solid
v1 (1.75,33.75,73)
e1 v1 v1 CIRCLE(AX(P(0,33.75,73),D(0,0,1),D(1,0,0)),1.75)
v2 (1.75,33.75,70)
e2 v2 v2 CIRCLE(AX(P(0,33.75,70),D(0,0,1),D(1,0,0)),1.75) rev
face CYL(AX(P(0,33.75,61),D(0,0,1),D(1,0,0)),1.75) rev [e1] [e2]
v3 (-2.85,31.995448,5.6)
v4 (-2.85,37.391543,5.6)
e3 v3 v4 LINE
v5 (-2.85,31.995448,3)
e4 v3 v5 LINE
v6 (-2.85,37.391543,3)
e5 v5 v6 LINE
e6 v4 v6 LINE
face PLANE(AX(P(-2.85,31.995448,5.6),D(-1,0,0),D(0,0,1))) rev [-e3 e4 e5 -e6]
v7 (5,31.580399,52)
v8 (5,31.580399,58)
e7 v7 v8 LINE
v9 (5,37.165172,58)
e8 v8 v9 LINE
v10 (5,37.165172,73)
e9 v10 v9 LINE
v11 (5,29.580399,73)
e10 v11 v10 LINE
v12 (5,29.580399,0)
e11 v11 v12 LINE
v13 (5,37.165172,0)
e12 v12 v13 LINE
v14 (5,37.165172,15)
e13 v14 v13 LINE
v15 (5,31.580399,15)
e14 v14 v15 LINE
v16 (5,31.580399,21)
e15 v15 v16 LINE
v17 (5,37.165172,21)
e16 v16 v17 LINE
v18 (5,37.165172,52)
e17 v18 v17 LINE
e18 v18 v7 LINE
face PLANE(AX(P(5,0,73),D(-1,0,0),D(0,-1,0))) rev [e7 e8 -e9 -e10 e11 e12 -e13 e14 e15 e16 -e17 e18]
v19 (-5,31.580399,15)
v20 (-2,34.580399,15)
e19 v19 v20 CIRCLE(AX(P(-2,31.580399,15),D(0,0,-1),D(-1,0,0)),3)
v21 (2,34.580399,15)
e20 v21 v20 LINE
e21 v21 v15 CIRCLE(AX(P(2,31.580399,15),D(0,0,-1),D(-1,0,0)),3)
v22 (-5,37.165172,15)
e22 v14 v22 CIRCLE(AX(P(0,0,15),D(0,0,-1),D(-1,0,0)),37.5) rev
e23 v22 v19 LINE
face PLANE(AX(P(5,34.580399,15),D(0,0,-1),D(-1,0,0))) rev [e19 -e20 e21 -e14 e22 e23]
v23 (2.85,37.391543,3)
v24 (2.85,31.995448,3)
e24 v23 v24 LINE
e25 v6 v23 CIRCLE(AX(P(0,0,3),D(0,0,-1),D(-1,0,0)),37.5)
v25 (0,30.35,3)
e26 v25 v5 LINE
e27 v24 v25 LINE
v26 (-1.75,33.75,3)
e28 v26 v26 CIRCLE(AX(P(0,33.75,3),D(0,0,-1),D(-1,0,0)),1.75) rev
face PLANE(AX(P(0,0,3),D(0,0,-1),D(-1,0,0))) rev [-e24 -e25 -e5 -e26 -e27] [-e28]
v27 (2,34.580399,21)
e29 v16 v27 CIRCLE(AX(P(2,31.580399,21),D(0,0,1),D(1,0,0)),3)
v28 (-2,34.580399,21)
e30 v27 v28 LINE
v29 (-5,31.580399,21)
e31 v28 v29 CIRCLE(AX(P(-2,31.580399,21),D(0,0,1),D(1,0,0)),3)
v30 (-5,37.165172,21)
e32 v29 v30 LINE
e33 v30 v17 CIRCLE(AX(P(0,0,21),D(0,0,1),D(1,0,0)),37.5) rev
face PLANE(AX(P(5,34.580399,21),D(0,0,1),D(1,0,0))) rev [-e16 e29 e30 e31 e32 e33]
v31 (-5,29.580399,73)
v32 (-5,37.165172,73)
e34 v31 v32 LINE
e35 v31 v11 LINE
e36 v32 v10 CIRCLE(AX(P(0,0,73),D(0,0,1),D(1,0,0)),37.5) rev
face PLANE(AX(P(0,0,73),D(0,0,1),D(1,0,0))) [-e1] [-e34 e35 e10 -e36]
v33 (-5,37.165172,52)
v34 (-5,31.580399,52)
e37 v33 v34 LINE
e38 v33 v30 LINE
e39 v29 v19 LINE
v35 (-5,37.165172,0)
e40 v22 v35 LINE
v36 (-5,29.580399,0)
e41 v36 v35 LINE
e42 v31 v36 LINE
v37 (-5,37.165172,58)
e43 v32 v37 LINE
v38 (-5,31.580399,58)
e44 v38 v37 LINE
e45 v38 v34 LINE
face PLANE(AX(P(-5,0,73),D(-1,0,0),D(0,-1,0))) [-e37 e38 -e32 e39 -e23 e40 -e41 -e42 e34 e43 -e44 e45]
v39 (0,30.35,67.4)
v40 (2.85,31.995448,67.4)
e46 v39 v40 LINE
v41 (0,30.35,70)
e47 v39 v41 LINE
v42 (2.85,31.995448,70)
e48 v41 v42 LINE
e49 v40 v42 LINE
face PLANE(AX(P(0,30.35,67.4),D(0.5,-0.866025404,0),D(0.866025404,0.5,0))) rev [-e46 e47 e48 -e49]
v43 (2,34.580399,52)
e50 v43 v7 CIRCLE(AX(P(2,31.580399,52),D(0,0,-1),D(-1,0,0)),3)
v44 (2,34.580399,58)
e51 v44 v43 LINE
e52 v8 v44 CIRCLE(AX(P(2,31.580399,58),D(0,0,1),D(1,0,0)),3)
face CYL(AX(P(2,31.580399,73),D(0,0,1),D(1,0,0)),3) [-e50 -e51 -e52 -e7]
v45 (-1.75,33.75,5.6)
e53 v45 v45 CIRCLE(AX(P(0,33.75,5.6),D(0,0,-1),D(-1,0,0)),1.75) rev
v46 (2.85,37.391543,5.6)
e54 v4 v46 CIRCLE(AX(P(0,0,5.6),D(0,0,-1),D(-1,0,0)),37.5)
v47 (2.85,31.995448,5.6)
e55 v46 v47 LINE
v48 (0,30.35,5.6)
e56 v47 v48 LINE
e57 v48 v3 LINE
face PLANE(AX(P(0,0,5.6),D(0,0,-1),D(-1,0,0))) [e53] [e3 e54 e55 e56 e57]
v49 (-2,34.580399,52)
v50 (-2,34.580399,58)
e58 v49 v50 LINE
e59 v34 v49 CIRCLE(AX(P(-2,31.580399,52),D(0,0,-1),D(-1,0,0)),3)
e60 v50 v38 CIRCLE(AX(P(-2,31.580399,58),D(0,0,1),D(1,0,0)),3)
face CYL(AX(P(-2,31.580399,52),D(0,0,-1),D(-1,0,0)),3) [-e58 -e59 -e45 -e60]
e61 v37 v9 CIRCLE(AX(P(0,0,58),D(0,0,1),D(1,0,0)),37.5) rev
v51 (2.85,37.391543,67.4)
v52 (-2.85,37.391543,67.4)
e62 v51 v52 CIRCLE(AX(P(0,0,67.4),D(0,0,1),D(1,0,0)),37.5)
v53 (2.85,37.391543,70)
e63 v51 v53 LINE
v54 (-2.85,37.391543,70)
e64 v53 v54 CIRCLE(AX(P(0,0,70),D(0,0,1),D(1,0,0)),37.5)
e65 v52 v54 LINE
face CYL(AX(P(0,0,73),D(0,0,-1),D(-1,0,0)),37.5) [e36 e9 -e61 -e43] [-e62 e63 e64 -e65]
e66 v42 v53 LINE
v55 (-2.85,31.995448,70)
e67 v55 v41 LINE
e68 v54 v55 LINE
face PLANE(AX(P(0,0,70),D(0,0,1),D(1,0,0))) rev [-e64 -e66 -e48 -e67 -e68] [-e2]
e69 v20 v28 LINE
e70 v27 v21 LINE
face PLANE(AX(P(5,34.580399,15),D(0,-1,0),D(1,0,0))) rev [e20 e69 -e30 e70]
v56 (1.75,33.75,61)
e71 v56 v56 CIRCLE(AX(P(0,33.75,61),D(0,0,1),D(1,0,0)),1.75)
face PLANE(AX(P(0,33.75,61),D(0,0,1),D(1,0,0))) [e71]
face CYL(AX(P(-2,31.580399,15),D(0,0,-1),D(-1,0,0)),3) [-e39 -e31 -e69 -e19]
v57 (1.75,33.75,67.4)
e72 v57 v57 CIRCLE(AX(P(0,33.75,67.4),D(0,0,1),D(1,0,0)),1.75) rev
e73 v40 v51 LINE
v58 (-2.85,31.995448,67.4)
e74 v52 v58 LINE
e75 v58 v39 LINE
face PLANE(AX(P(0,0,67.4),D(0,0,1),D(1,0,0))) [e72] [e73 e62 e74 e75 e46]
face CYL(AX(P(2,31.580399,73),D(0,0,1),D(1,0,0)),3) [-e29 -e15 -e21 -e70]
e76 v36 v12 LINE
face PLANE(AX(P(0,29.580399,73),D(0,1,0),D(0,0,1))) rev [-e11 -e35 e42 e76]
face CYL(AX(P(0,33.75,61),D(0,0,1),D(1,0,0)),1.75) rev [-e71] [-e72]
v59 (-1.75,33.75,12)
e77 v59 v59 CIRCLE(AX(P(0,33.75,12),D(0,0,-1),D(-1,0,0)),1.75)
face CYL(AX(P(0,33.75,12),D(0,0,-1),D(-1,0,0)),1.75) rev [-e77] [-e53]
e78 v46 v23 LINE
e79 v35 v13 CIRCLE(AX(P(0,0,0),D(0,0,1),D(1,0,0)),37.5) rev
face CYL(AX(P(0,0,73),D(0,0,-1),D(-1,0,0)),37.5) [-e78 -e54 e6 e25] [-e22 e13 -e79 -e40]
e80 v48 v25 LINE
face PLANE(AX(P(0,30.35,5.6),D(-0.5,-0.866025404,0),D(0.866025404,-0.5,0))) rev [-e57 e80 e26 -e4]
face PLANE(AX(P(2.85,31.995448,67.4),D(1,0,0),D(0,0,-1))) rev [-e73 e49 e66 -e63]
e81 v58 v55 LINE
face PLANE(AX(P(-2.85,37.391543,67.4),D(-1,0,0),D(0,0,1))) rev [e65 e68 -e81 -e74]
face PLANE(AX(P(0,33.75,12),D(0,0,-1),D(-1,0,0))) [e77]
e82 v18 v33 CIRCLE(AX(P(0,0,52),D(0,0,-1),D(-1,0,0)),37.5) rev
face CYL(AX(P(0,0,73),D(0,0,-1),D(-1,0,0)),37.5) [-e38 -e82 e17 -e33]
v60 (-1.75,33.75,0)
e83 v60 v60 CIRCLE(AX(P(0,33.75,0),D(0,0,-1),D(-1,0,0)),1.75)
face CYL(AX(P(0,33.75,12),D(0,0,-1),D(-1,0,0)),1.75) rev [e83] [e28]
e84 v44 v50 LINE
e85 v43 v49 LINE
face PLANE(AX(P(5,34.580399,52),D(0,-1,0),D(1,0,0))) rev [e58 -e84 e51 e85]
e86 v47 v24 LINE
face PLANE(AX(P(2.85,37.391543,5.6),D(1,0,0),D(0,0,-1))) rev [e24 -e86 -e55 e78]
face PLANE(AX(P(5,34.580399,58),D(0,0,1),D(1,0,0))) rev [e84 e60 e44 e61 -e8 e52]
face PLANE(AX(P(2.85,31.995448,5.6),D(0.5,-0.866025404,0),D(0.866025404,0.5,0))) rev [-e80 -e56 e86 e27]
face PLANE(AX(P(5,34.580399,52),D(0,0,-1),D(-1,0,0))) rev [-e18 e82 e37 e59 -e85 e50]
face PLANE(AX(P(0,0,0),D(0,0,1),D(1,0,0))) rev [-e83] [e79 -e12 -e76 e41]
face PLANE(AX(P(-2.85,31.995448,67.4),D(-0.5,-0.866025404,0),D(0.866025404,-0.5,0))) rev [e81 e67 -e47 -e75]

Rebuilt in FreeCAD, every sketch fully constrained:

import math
import FreeCAD as App
import Part
import Sketcher
Q = App.Units.Quantity


def edges_at(feature, points):
    """Names of the edges that pass closest to the given points."""
    edges = feature.Shape.Edges
    near = lambda p: min(range(len(edges)), key=lambda i: edges[i].distToShape(Part.Vertex(*p))[0])
    return sorted({f"Edge{near(p) + 1}" for p in points})

doc = App.newDocument("Part")
body = doc.addObject("PartDesign::Body", "Body")

sketch1 = doc.addObject("Sketcher::SketchObject", "Sketch")
body.addObject(sketch1)
sketch1.AttachmentSupport = (doc.XY_Plane, [""])
sketch1.MapMode = "FlatFace"
sketch1.addGeometry([
    Part.ArcOfCircle(Part.Circle(App.Vector(0, 0, 0), App.Vector(0, 0, 1), 37), math.radians(82.34), math.radians(97.66)),
    Part.LineSegment(App.Vector(-5, 37, 0), App.Vector(-5, 30, 0)),
    Part.LineSegment(App.Vector(-5, 30, 0), App.Vector(5, 30, 0)),
    Part.LineSegment(App.Vector(5, 30, 0), App.Vector(5, 37, 0)),
], False)
sketch1.addConstraint([
    Sketcher.Constraint("Coincident", 0, 2, 1, 1),
    Sketcher.Constraint("Coincident", 1, 2, 2, 1),
    Sketcher.Constraint("Coincident", 2, 2, 3, 1),
    Sketcher.Constraint("Coincident", 3, 2, 0, 1),
    Sketcher.Constraint("Vertical", 1),
    Sketcher.Constraint("Horizontal", 2),
    Sketcher.Constraint("Vertical", 3),
    Sketcher.Constraint("Coincident", 0, 3, -1, 1),
    Sketcher.Constraint("Horizontal", 0, 2, 3, 2),
    Sketcher.Constraint("Radius", 0, 37.5),
    Sketcher.Constraint("DistanceX", 2, 1, 2, 2, 10.0),
    Sketcher.Constraint("DistanceY", -1, 1, 1, 2, 29.580399),
])
pad1 = doc.addObject("PartDesign::Pad", "Pad")
body.addObject(pad1)
pad1.Profile = sketch1
pad1.Length = 73

sketch2 = doc.addObject("Sketcher::SketchObject", "Sketch001")
body.addObject(sketch2)
sketch2.AttachmentSupport = (doc.YZ_Plane, [""])
sketch2.MapMode = "FlatFace"
sketch2.AttachmentOffset = App.Placement(App.Vector(0, 0, -5), App.Rotation())
sketch2.addGeometry([
    Part.LineSegment(App.Vector(40, 15, 0), App.Vector(35, 15, 0)),
    Part.LineSegment(App.Vector(35, 15, 0), App.Vector(35, 21, 0)),
    Part.LineSegment(App.Vector(35, 21, 0), App.Vector(40, 21, 0)),
    Part.LineSegment(App.Vector(40, 21, 0), App.Vector(40, 15, 0)),
    Part.LineSegment(App.Vector(40, 52, 0), App.Vector(35, 52, 0)),
    Part.LineSegment(App.Vector(35, 52, 0), App.Vector(35, 58, 0)),
    Part.LineSegment(App.Vector(35, 58, 0), App.Vector(40, 58, 0)),
    Part.LineSegment(App.Vector(40, 58, 0), App.Vector(40, 52, 0)),
], False)
sketch2.addConstraint([
    Sketcher.Constraint("Coincident", 0, 2, 1, 1),
    Sketcher.Constraint("Coincident", 1, 2, 2, 1),
    Sketcher.Constraint("Coincident", 2, 2, 3, 1),
    Sketcher.Constraint("Coincident", 3, 2, 0, 1),
    Sketcher.Constraint("Coincident", 4, 2, 5, 1),
    Sketcher.Constraint("Coincident", 5, 2, 6, 1),
    Sketcher.Constraint("Coincident", 6, 2, 7, 1),
    Sketcher.Constraint("Coincident", 7, 2, 4, 1),
    Sketcher.Constraint("Horizontal", 0),
    Sketcher.Constraint("Vertical", 1),
    Sketcher.Constraint("Horizontal", 2),
    Sketcher.Constraint("Vertical", 3),
    Sketcher.Constraint("Horizontal", 4),
    Sketcher.Constraint("Vertical", 5),
    Sketcher.Constraint("Horizontal", 6),
    Sketcher.Constraint("Vertical", 7),
    Sketcher.Constraint("Vertical", 1, 2, 4, 2),
    Sketcher.Constraint("Vertical", 3, 2, 6, 2),
    Sketcher.Constraint("Equal", 3, 5),
    Sketcher.Constraint("DistanceX", 0, 2, 0, 1, 5.0),
    Sketcher.Constraint("DistanceY", 1, 1, 1, 2, 6.0),
    Sketcher.Constraint("DistanceY", -1, 1, 0, 2, 15.0),
    Sketcher.Constraint("DistanceY", -1, 1, 4, 2, 52.0),
    Sketcher.Constraint("DistanceX", -1, 1, 0, 2, 34.580399),
])
pocket1 = doc.addObject("PartDesign::Pocket", "Pocket")
body.addObject(pocket1)
pocket1.Profile = sketch2
pocket1.Type = "ThroughAll"
pocket1.Reversed = True

sketch3 = doc.addObject("Sketcher::SketchObject", "Sketch002")
body.addObject(sketch3)
sketch3.AttachmentSupport = (doc.XY_Plane, [""])
sketch3.MapMode = "FlatFace"
sketch3.AttachmentOffset = App.Placement(App.Vector(0, 0, 73), App.Rotation())
sketch3.addGeometry(Part.Circle(App.Vector(0, 33.8, 0), App.Vector(0, 0, 1), 1.8), False)
sketch3.addConstraint([
    Sketcher.Constraint("PointOnObject", 0, 3, -2),
    Sketcher.Constraint("Diameter", 0, 3.5),
    Sketcher.Constraint("DistanceY", -1, 1, 0, 3, 33.75),
])
pocket2 = doc.addObject("PartDesign::Pocket", "Pocket001")
body.addObject(pocket2)
pocket2.Profile = sketch3
pocket2.Length = 12

sketch4 = doc.addObject("Sketcher::SketchObject", "Sketch003")
body.addObject(sketch4)
sketch4.AttachmentSupport = (doc.XY_Plane, [""])
sketch4.MapMode = "FlatFace"
sketch4.AttachmentOffset = App.Placement(App.Vector(0, 0, 12), App.Rotation())
sketch4.addGeometry(Part.Circle(App.Vector(0, 33.8, 0), App.Vector(0, 0, 1), 1.8), False)
sketch4.addConstraint([
    Sketcher.Constraint("PointOnObject", 0, 3, -2),
    Sketcher.Constraint("Diameter", 0, 3.5),
    Sketcher.Constraint("DistanceY", -1, 1, 0, 3, 33.75),
])
pocket3 = doc.addObject("PartDesign::Pocket", "Pocket002")
body.addObject(pocket3)
pocket3.Profile = sketch4
pocket3.Length = 12
doc.recompute()

fillet = doc.addObject("PartDesign::Fillet", "Fillet")
body.addObject(fillet)
fillet.Base = (pocket3, edges_at(pocket3, [
    (5, 34.58, 18),
    (-5, 34.58, 18),
    (5, 34.58, 55),
    (-5, 34.58, 55),
]))
fillet.Radius = 3

sketch5 = doc.addObject("Sketcher::SketchObject", "Sketch004")
body.addObject(sketch5)
sketch5.AttachmentSupport = (doc.XY_Plane, [""])
sketch5.MapMode = "FlatFace"
sketch5.AttachmentOffset = App.Placement(App.Vector(0, 0, 3), App.Rotation())
sketch5.addGeometry([
    Part.LineSegment(App.Vector(2.9, 37.4, 0), App.Vector(2.9, 32, 0)),
    Part.LineSegment(App.Vector(2.9, 32, 0), App.Vector(0, 30.4, 0)),
    Part.LineSegment(App.Vector(0, 30.4, 0), App.Vector(-2.9, 32, 0)),
    Part.LineSegment(App.Vector(-2.9, 32, 0), App.Vector(-2.9, 37.4, 0)),
    Part.ArcOfCircle(Part.Circle(App.Vector(0, 0, 0), App.Vector(0, 0, 1), 37.5), math.radians(85.64), math.radians(94.36)),
], False)
sketch5.addConstraint([
    Sketcher.Constraint("Coincident", 0, 2, 1, 1),
    Sketcher.Constraint("Coincident", 1, 2, 2, 1),
    Sketcher.Constraint("Coincident", 2, 2, 3, 1),
    Sketcher.Constraint("Coincident", 3, 2, 4, 2),
    Sketcher.Constraint("Coincident", 4, 1, 0, 1),
    Sketcher.Constraint("Vertical", 0),
    Sketcher.Constraint("Vertical", 3),
    Sketcher.Constraint("Coincident", 4, 3, -1, 1),
    Sketcher.Constraint("Symmetric", 0, 2, 2, 2, -2),
    Sketcher.Constraint("PointOnObject", 1, 2, -2),
    Sketcher.Constraint("Radius", 4, 37.5),
    Sketcher.Constraint("Angle", 1, Q("-150 deg")),
    Sketcher.Constraint("DistanceX", 2, 2, 0, 2, 5.7),
    Sketcher.Constraint("DistanceY", -1, 1, 1, 2, 30.35),
])
pocket4 = doc.addObject("PartDesign::Pocket", "Pocket003")
body.addObject(pocket4)
pocket4.Profile = sketch5
pocket4.Length = 2.6
pocket4.Reversed = True

sketch6 = doc.addObject("Sketcher::SketchObject", "Sketch005")
body.addObject(sketch6)
sketch6.AttachmentSupport = (doc.XY_Plane, [""])
sketch6.MapMode = "FlatFace"
sketch6.AttachmentOffset = App.Placement(App.Vector(0, 0, 67.4), App.Rotation())
sketch6.addGeometry([
    Part.LineSegment(App.Vector(-2.9, 37.4, 0), App.Vector(-2.9, 32, 0)),
    Part.LineSegment(App.Vector(-2.9, 32, 0), App.Vector(0, 30.4, 0)),
    Part.LineSegment(App.Vector(0, 30.4, 0), App.Vector(2.9, 32, 0)),
    Part.LineSegment(App.Vector(2.9, 32, 0), App.Vector(2.9, 37.4, 0)),
    Part.ArcOfCircle(Part.Circle(App.Vector(0, 0, 0), App.Vector(0, 0, 1), 37.5), math.radians(85.64), math.radians(94.36)),
], False)
sketch6.addConstraint([
    Sketcher.Constraint("Coincident", 0, 2, 1, 1),
    Sketcher.Constraint("Coincident", 1, 2, 2, 1),
    Sketcher.Constraint("Coincident", 2, 2, 3, 1),
    Sketcher.Constraint("Coincident", 3, 2, 4, 1),
    Sketcher.Constraint("Coincident", 4, 2, 0, 1),
    Sketcher.Constraint("Vertical", 0),
    Sketcher.Constraint("Vertical", 3),
    Sketcher.Constraint("Coincident", 4, 3, -1, 1),
    Sketcher.Constraint("Symmetric", 0, 2, 2, 2, -2),
    Sketcher.Constraint("PointOnObject", 1, 2, -2),
    Sketcher.Constraint("Radius", 4, 37.5),
    Sketcher.Constraint("Angle", 1, Q("-30 deg")),
    Sketcher.Constraint("DistanceX", 0, 2, 2, 2, 5.7),
    Sketcher.Constraint("DistanceY", -1, 1, 1, 2, 30.35),
])
pocket5 = doc.addObject("PartDesign::Pocket", "Pocket004")
body.addObject(pocket5)
pocket5.Profile = sketch6
pocket5.Length = 2.6
pocket5.Reversed = True

doc.recompute()
